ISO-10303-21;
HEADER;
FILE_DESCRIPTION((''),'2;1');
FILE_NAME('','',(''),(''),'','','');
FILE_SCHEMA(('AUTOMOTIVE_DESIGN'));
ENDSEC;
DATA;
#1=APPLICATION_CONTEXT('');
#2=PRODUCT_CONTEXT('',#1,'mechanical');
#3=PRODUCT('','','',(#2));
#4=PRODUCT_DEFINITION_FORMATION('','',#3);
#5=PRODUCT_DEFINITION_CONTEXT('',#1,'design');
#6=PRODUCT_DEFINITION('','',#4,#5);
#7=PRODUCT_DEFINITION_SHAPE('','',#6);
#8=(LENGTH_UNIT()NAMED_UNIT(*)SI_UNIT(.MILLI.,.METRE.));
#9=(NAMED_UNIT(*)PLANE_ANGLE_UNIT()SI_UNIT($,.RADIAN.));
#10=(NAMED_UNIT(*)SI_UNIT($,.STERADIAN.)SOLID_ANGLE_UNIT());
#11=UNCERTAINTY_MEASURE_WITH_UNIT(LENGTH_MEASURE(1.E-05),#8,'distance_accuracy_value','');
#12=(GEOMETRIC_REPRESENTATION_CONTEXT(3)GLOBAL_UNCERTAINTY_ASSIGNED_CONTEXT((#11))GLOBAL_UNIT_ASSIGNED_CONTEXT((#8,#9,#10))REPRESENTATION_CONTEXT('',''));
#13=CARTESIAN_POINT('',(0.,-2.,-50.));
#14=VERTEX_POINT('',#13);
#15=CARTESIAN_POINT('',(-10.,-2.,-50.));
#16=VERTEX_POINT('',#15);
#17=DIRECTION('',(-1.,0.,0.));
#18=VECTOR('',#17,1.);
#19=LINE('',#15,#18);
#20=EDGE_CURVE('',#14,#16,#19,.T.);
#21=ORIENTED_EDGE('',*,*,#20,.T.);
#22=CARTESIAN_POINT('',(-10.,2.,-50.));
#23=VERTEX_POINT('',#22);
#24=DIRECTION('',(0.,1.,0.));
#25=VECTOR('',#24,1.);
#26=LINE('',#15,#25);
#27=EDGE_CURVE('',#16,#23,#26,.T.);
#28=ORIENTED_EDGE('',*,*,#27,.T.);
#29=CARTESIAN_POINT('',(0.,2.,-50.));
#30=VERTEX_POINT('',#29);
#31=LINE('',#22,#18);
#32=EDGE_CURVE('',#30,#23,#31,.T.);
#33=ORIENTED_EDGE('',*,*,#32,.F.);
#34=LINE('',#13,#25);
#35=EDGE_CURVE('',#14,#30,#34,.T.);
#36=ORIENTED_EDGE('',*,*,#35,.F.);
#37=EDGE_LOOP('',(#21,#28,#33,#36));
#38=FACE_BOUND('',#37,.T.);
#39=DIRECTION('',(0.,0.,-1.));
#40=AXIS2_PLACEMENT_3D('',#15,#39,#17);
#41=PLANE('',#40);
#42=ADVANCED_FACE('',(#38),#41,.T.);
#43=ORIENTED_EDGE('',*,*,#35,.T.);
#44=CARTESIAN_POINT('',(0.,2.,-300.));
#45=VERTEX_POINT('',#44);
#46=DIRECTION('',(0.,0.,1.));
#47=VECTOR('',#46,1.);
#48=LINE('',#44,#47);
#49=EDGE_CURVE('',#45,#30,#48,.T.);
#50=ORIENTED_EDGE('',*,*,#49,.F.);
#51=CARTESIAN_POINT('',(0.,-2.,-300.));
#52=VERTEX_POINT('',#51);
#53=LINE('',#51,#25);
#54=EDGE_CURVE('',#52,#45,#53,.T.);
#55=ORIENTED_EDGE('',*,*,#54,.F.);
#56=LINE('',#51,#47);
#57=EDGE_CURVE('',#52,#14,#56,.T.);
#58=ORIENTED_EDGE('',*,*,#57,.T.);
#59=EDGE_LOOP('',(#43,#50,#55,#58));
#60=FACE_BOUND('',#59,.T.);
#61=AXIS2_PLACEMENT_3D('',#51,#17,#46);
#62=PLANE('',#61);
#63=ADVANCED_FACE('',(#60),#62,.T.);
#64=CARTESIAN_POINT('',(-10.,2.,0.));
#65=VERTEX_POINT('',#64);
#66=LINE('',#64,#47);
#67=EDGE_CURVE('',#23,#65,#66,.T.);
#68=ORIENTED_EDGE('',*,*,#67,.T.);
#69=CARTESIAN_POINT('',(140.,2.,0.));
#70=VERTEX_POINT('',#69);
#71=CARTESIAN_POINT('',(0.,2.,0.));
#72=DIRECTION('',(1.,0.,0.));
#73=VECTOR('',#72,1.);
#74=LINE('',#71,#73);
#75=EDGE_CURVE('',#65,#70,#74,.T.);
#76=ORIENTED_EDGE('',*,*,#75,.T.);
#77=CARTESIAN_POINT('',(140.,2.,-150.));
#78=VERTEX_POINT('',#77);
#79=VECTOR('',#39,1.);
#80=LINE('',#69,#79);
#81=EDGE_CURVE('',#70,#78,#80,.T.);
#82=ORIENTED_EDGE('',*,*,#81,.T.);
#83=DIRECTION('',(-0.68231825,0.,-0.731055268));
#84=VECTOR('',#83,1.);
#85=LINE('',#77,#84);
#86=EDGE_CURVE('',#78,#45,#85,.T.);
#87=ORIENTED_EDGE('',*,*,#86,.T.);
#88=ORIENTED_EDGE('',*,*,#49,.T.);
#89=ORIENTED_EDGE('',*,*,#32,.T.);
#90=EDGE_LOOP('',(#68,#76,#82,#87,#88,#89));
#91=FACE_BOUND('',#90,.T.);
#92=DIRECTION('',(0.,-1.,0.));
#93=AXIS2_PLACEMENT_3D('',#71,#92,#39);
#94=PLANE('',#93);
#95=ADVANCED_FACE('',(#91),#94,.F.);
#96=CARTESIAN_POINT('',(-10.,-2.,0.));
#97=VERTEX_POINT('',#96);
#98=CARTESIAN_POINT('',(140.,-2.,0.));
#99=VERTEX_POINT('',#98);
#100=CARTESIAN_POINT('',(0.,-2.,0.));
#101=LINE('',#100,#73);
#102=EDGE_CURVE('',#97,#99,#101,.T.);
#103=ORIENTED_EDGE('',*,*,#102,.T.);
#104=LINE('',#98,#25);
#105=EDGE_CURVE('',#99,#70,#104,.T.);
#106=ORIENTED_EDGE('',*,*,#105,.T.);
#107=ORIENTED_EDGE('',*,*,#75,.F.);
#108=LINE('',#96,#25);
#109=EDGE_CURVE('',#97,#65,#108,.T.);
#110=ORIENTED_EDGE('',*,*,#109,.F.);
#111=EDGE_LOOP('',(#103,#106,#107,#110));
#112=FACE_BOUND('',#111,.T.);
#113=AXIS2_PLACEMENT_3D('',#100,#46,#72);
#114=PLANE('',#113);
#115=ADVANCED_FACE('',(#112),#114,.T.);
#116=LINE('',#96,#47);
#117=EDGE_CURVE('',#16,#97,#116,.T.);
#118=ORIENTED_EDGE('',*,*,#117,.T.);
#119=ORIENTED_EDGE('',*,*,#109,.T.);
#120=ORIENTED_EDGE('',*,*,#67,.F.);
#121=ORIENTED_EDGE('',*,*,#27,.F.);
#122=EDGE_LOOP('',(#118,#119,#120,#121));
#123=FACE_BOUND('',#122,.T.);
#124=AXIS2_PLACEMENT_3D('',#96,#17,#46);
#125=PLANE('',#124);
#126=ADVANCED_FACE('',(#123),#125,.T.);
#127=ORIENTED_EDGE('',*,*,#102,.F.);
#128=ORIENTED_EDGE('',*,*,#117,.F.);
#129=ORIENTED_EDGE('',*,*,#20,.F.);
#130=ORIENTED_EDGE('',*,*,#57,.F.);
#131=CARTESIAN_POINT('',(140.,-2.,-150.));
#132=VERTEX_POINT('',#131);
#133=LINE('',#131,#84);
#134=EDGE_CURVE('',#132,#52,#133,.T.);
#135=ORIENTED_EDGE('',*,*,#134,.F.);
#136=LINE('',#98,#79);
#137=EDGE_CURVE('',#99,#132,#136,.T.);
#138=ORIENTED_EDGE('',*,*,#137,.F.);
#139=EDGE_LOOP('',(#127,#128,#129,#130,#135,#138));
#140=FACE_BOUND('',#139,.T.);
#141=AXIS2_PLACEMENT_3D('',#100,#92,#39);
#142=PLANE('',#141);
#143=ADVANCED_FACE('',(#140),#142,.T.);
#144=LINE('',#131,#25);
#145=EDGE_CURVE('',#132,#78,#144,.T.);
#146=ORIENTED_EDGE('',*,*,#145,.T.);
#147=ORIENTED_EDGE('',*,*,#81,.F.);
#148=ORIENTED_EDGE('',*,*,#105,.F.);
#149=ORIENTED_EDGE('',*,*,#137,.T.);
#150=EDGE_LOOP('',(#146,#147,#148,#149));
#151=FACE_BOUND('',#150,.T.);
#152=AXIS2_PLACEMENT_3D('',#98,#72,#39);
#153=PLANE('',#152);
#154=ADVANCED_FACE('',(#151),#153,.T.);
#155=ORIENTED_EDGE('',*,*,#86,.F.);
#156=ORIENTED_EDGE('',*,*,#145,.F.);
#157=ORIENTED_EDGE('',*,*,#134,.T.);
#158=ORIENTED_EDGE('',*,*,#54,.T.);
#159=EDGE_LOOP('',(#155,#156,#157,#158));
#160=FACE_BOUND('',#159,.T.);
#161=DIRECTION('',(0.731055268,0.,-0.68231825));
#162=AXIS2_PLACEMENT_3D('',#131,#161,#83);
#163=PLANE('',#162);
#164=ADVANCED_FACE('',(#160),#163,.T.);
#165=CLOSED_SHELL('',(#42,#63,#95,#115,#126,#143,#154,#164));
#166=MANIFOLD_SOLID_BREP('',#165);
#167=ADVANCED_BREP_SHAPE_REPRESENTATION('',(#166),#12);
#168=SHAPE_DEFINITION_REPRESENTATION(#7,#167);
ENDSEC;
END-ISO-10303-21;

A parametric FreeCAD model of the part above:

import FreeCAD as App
import Part
import Sketcher
Q = App.Units.Quantity

doc = App.newDocument("Part")
body = doc.addObject("PartDesign::Body", "Body")

# Sketch on XZ plane
sketch1 = body.newObject("Sketcher::SketchObject", "Sketch")
sketch1.AttachmentSupport = (doc.getObject("XZ_Plane"), [""])
sketch1.MapMode = "FlatFace"
sketch1.addGeometry([
    Part.LineSegment(App.Vector(0, -300, 0), App.Vector(0, -50, 0)),  # 0
    Part.LineSegment(App.Vector(0, -50, 0), App.Vector(-10, -50, 0)),  # 1
    Part.LineSegment(App.Vector(-10, -50, 0), App.Vector(-10, 0, 0)),  # 2
    Part.LineSegment(App.Vector(-10, 0, 0), App.Vector(140, 0, 0)),  # 3
    Part.LineSegment(App.Vector(140, 0, 0), App.Vector(140, -150, 0)),  # 4
    Part.LineSegment(App.Vector(140, -150, 0), App.Vector(0, -300, 0)),  # 5
], False)
sketch1.addConstraint([
    Sketcher.Constraint("Coincident", 0, 2, 1, 1),
    Sketcher.Constraint("Coincident", 1, 2, 2, 1),
    Sketcher.Constraint("Coincident", 2, 2, 3, 1),
    Sketcher.Constraint("Coincident", 3, 2, 4, 1),
    Sketcher.Constraint("Coincident", 4, 2, 5, 1),
    Sketcher.Constraint("Coincident", 5, 2, 0, 1),
    Sketcher.Constraint("Vertical", 0),
    Sketcher.Constraint("Horizontal", 1),
    Sketcher.Constraint("Vertical", 2),
    Sketcher.Constraint("Horizontal", 3),
    Sketcher.Constraint("Vertical", 4),
    Sketcher.Constraint("PointOnObject", 0, 2, -2),
    Sketcher.Constraint("PointOnObject", 2, 2, -1),
    Sketcher.Constraint("Equal", 3, 4),
    Sketcher.Constraint("DistanceX", 1, 2, 1, 1, Q("10 mm")),
    Sketcher.Constraint("DistanceX", 3, 1, 3, 2, Q("150 mm")),
    Sketcher.Constraint("DistanceY", 0, 1, 0, 2, Q("250 mm")),
    Sketcher.Constraint("DistanceY", 2, 1, 2, 2, Q("50 mm")),
])
pad1 = body.newObject("PartDesign::Pad", "Pad")
pad1.Profile = sketch1
pad1.Type = "TwoLengths"
pad1.Length = 2
pad1.Length2 = 2
pad1.Reversed = True

doc.recompute()
